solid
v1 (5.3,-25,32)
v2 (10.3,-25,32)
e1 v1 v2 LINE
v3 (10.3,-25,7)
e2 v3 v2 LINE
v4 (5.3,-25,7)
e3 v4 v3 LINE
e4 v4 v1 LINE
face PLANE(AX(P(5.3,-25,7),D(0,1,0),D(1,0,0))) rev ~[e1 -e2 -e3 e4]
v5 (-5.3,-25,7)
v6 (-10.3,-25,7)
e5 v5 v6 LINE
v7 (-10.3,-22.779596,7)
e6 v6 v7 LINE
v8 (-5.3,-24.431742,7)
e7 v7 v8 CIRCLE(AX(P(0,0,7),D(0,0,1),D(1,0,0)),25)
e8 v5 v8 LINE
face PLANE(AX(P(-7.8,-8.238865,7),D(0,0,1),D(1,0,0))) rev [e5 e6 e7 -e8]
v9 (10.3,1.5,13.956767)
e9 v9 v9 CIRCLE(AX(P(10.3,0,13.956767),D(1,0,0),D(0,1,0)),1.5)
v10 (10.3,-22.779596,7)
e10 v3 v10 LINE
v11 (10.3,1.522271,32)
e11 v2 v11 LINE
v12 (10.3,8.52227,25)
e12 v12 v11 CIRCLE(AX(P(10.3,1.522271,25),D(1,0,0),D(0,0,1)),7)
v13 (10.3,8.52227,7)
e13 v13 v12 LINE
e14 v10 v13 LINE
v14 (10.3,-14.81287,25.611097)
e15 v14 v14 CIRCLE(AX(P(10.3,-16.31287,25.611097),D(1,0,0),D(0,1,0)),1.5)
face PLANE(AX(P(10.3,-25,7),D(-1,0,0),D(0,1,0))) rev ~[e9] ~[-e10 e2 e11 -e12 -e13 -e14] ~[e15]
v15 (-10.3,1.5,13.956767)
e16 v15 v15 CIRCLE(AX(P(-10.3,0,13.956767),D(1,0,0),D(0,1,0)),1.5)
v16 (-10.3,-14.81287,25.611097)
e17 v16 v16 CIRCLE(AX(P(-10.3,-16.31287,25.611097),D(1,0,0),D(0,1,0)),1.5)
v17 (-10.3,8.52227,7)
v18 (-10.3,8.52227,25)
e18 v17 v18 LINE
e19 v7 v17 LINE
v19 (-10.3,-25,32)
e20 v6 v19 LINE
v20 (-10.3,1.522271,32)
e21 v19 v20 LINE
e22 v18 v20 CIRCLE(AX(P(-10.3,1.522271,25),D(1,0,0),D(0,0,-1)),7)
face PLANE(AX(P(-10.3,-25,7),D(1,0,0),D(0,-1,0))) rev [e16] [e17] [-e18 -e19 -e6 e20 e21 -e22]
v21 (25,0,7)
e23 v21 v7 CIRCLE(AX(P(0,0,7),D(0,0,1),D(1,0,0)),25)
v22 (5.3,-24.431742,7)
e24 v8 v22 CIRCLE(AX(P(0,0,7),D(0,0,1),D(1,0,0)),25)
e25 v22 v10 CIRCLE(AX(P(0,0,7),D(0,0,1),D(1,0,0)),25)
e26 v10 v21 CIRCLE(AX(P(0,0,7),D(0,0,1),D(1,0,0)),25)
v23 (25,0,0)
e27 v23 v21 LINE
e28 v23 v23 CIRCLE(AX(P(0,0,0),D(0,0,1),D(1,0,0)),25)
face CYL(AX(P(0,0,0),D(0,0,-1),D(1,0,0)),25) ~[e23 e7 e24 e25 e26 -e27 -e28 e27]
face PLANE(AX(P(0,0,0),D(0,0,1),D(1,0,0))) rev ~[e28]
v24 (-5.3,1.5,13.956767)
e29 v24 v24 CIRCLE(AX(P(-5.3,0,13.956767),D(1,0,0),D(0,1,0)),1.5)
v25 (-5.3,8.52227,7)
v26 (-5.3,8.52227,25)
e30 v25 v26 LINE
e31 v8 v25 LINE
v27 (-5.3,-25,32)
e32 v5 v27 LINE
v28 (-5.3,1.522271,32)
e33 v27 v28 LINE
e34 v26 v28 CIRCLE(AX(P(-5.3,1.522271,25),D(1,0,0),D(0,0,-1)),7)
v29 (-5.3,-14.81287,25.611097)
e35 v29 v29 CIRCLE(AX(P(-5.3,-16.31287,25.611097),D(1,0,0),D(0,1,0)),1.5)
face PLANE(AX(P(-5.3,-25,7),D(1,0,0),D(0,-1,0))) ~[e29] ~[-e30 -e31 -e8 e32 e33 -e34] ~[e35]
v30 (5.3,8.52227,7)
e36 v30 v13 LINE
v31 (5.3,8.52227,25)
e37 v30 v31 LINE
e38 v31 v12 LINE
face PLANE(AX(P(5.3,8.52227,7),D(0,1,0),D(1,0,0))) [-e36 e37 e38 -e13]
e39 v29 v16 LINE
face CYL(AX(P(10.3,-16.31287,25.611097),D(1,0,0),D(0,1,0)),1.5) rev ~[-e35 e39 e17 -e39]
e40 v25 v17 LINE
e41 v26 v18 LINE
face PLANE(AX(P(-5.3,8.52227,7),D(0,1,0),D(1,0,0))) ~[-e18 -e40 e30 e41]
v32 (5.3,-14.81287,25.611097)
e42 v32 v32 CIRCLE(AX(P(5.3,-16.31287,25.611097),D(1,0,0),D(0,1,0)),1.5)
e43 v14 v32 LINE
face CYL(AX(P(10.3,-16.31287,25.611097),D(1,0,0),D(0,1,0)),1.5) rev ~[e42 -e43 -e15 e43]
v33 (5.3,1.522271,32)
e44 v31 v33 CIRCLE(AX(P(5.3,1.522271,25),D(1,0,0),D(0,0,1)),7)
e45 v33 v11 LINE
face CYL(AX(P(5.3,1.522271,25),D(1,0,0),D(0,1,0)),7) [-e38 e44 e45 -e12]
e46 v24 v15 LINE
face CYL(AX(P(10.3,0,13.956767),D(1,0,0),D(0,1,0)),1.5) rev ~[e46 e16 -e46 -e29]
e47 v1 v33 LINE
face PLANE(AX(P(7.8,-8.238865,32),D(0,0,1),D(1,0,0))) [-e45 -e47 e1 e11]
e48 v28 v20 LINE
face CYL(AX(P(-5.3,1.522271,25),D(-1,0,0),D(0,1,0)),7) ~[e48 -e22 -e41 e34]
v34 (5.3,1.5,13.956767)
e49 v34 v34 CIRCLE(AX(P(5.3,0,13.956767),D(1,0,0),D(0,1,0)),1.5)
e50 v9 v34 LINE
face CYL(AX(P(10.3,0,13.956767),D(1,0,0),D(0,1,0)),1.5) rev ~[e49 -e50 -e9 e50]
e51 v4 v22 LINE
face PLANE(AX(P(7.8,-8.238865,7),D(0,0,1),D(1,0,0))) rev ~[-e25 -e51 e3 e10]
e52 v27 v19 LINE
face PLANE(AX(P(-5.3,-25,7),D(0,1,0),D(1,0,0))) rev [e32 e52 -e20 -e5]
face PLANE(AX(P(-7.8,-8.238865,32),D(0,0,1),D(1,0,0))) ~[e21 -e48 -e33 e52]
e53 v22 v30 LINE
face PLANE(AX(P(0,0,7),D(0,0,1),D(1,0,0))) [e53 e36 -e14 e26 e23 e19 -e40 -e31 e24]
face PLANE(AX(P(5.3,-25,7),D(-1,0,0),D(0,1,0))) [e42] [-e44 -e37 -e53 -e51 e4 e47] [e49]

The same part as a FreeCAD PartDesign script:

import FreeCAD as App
import Part
import Sketcher

V = App.Vector
Q = App.Units.Quantity


def edges_at(feature, points):
    """Names of the edges that pass closest to the given points."""
    edges = feature.Shape.Edges
    near = lambda p: min(range(len(edges)), key=lambda i: edges[i].distToShape(Part.Vertex(*p))[0])
    return sorted({f"Edge{near(p) + 1}" for p in points})

doc = App.newDocument("Part")
body = doc.addObject("PartDesign::Body", "Body")

sketch1 = body.newObject("Sketcher::SketchObject", "Sketch")
sketch1.AttachmentSupport = (doc.getObject("XY_Plane"), [""])
sketch1.MapMode = "FlatFace"
sketch1.addGeometry(Part.Circle(V(0, 0, 0), V(0, 0, 1), 25), False)
sketch1.addConstraint([
    Sketcher.Constraint("Coincident", 0, 3, -1, 1),
    Sketcher.Constraint("Diameter", 0, Q("50 mm")),
])
pad1 = body.newObject("PartDesign::Pad", "Pad")
pad1.Profile = sketch1
pad1.Length = 7

sketch2 = body.newObject("Sketcher::SketchObject", "Sketch001")
sketch2.AttachmentSupport = (doc.getObject("XY_Plane"), [""])
sketch2.MapMode = "FlatFace"
sketch2.AttachmentOffset = App.Placement(V(0, 0, 7), App.Rotation())
sketch2.addGeometry([
    Part.LineSegment(V(5, 9, 0), V(5, -25, 0)),
    Part.LineSegment(V(5, -25, 0), V(10, -25, 0)),
    Part.LineSegment(V(10, -25, 0), V(10, 9, 0)),
    Part.LineSegment(V(10, 9, 0), V(5, 9, 0)),
], False)
sketch2.addConstraint([
    Sketcher.Constraint("Coincident", 0, 2, 1, 1),
    Sketcher.Constraint("Coincident", 1, 2, 2, 1),
    Sketcher.Constraint("Coincident", 2, 2, 3, 1),
    Sketcher.Constraint("Coincident", 3, 2, 0, 1),
    Sketcher.Constraint("Vertical", 0),
    Sketcher.Constraint("Horizontal", 1),
    Sketcher.Constraint("Vertical", 2),
    Sketcher.Constraint("Horizontal", 3),
    Sketcher.Constraint("DistanceX", 1, 1, 1, 2, Q("5 mm")),
    Sketcher.Constraint("DistanceY", 0, 2, -1, 1, Q("25 mm")),
    Sketcher.Constraint("DistanceX", -1, 1, 0, 2, Q("5.3 mm")),
    Sketcher.Constraint("DistanceY", 0, 2, 0, 1, Q("33.522271 mm")),
])
pad2 = body.newObject("PartDesign::Pad", "Pad001")
pad2.Profile = sketch2
pad2.Length = 25
doc.recompute()

mirrored = body.newObject("PartDesign::Mirrored", "Mirrored")
mirrored.Originals = [pad2]
mirrored.MirrorPlane = (doc.getObject("YZ_Plane"), [""])
body.Tip = mirrored
doc.recompute()

fillet = body.newObject("PartDesign::Fillet", "Fillet")
fillet.Base = (mirrored, edges_at(mirrored, [(7.8, 8.522, 32), (-7.8, 8.522, 32)]))
fillet.Radius = 7

sketch3 = body.newObject("Sketcher::SketchObject", "Sketch002")
sketch3.AttachmentSupport = (doc.getObject("YZ_Plane"), [""])
sketch3.MapMode = "FlatFace"
sketch3.AttachmentOffset = App.Placement(V(0, 0, 10.3), App.Rotation())
sketch3.addGeometry([
    Part.Circle(V(0, 14, 0), V(0, 0, 1), 1.5),
    Part.Circle(V(-16.3, 25.6, 0), V(0, 0, 1), 1.5),
], False)
sketch3.addConstraint([
    Sketcher.Constraint("Equal", 0, 1),
    Sketcher.Constraint("PointOnObject", 0, 3, -2),
    Sketcher.Constraint("Diameter", 0, Q("3 mm")),
    Sketcher.Constraint("DistanceX", 1, 3, -1, 1, Q("16.31287 mm")),
    Sketcher.Constraint("DistanceY", 0, 3, 1, 3, Q("11.65433 mm")),
    Sketcher.Constraint("DistanceY", -1, 1, 0, 3, Q("13.956767 mm")),
])
pocket1 = body.newObject("PartDesign::Pocket", "Pocket")
pocket1.Profile = sketch3
pocket1.Type = "ThroughAll"

doc.recompute()
